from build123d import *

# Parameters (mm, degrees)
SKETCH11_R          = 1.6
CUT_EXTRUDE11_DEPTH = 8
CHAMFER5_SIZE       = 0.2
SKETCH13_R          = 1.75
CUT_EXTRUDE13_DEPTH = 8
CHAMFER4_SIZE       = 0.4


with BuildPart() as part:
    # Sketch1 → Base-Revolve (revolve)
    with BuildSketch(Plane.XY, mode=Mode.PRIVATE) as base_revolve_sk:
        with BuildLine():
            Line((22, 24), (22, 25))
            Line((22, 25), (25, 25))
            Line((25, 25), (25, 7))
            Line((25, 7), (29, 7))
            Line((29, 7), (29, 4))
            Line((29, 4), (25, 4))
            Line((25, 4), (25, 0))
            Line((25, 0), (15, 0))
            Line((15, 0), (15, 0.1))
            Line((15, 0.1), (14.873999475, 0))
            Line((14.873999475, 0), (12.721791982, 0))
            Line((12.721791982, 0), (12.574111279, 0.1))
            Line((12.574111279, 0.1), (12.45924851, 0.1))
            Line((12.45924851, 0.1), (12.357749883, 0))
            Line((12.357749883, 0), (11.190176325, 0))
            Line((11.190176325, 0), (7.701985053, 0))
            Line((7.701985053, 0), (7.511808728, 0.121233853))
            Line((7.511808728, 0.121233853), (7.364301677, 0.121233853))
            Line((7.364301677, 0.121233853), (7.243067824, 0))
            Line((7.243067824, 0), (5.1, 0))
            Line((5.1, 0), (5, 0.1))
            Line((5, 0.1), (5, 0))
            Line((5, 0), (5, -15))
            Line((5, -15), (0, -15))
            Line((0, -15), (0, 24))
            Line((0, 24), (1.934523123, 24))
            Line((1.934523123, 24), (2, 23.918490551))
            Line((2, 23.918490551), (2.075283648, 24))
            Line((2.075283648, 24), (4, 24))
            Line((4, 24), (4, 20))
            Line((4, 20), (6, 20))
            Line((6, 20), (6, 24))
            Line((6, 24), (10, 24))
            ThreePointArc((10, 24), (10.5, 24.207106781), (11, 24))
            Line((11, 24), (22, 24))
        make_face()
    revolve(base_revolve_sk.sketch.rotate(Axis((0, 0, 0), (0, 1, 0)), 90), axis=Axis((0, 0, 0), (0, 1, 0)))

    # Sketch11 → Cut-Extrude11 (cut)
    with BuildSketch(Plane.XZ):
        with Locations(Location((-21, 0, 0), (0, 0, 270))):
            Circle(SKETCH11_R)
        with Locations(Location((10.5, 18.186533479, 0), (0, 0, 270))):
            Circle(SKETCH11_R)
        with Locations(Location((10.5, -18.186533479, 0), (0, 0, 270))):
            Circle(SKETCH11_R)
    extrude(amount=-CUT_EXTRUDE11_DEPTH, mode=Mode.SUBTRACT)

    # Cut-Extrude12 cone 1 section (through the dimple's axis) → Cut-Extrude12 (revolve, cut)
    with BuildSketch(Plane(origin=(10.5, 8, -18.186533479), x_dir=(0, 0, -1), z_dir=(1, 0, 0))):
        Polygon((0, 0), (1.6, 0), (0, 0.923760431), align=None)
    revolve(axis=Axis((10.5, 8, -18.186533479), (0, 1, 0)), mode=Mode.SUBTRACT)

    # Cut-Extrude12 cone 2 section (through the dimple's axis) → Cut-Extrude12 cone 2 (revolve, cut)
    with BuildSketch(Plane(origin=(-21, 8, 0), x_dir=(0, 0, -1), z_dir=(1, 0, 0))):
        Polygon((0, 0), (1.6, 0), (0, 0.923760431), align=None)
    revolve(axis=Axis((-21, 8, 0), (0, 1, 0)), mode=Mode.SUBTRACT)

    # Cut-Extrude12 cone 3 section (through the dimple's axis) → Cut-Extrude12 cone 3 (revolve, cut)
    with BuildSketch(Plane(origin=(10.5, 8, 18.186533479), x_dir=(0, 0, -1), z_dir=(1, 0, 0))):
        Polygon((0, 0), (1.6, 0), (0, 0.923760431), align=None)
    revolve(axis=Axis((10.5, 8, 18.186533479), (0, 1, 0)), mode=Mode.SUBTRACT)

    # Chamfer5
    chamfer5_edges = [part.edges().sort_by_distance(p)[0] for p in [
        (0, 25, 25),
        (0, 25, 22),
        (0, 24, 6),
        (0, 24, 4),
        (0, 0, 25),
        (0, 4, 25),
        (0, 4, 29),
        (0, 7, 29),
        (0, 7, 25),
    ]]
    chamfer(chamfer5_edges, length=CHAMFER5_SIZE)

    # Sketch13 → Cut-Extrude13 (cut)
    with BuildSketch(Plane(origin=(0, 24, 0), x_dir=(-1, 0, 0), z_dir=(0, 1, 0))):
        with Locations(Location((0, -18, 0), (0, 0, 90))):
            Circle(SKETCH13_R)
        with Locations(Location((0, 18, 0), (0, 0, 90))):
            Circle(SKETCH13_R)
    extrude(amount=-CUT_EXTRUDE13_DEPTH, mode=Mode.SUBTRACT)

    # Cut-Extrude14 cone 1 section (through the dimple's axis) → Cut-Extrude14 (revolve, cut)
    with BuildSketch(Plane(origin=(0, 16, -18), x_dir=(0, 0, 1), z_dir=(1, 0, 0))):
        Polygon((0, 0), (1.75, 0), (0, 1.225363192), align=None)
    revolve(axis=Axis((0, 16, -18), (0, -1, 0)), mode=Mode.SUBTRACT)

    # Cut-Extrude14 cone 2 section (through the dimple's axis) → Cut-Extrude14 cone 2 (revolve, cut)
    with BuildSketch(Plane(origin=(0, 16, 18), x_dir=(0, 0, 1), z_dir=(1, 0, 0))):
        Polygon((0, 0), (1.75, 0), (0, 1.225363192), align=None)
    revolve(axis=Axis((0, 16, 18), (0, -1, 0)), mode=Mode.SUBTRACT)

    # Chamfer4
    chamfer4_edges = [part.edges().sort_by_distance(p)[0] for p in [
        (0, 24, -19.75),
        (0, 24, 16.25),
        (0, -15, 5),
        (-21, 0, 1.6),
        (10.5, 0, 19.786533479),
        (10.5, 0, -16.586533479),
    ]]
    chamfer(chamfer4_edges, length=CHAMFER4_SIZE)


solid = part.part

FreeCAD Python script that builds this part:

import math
import FreeCAD as App
import Part
import Sketcher
from FreeCAD import Vector
Q = App.Units.Quantity


def edges_at(feature, points):
    """Names of the edges that pass closest to the given points."""
    edges = feature.Shape.Edges
    near = lambda p: min(range(len(edges)), key=lambda i: edges[i].distToShape(Part.Vertex(*p))[0])
    return sorted({f"Edge{near(p) + 1}" for p in points})


def add_polygon(sketch, points):
    """Adds a closed chain of lines whose ends are joined by coincident constraints."""
    first, n = sketch.GeometryCount, len(points)
    for a, b in zip(points, points[1:] + points[:1]):
        sketch.addGeometry(Part.LineSegment(App.Vector(*a, 0), App.Vector(*b, 0)), False)
    for i in range(n):
        sketch.addConstraint(Sketcher.Constraint("Coincident", first + i, 2, first + (i + 1) % n, 1))

doc = App.newDocument("Part")
params = doc.addObject("Spreadsheet::Sheet", "Params")
for row, (alias, value) in enumerate([
    ("sketch1_width", "11 mm"),
    ("sketch1_width2", "4 mm"),
    ("sketch1_width3", "2 mm"),
    ("sketch1_width4", "5 mm"),
    ("sketch1_width5", "10 mm"),
    ("revolution_angle", "360 deg"),
    ("sketch2_diameter", "3.2 mm"),
    ("pocket1_length", "8 mm"),
    ("sketch3_height", "1.6 mm"),
    ("groove_angle", "360 deg"),
    ("sketch4_height", "1.6 mm"),
    ("groove2_angle", "360 deg"),
    ("sketch5_height", "1.6 mm"),
    ("groove3_angle", "360 deg"),
    ("chamfer_size", "0.2 mm"),
    ("sketch6_diameter", "3.5 mm"),
    ("pocket2_length", "8 mm"),
    ("sketch7_height", "1.75 mm"),
    ("groove4_angle", "360 deg"),
    ("sketch8_height", "1.75 mm"),
    ("groove5_angle", "360 deg"),
    ("chamfer2_size", "0.4 mm"),
], start=1):
    params.set(f"A{row}", alias)
    params.set(f"B{row}", "=" + value)
    params.setAlias(f"B{row}", alias)

body = doc.addObject("PartDesign::Body", "Body")

sketch1 = body.newObject("Sketcher::SketchObject", "Sketch")
sketch1.AttachmentSupport = (doc.getObject("XY_Plane"), [""])
sketch1.MapMode = "FlatFace"
sketch1.addGeometry([
    Part.LineSegment(Vector(22, 25, 0), Vector(22, 24, 0)),
    Part.LineSegment(Vector(22, 24, 0), Vector(11, 24, 0)),
    Part.ArcOfCircle(Part.Circle(Vector(10.5, 23.5, 0), Vector(0, 0, 1), 0.71), math.radians(45), math.radians(135)),
    Part.LineSegment(Vector(10, 24, 0), Vector(6, 24, 0)),
    Part.LineSegment(Vector(6, 24, 0), Vector(6, 20, 0)),
    Part.LineSegment(Vector(6, 20, 0), Vector(4, 20, 0)),
    Part.LineSegment(Vector(4, 20, 0), Vector(4, 24, 0)),
    Part.LineSegment(Vector(4, 24, 0), Vector(2.08, 24, 0)),
    Part.LineSegment(Vector(2.08, 24, 0), Vector(2, 23.92, 0)),
    Part.LineSegment(Vector(2, 23.92, 0), Vector(1.93, 24, 0)),
    Part.LineSegment(Vector(1.93, 24, 0), Vector(0, 24, 0)),
    Part.LineSegment(Vector(0, 24, 0), Vector(0, -15, 0)),
    Part.LineSegment(Vector(0, -15, 0), Vector(5, -15, 0)),
    Part.LineSegment(Vector(5, -15, 0), Vector(5, 0.1, 0)),
    Part.LineSegment(Vector(5, 0.1, 0), Vector(5.1, 0, 0)),
    Part.LineSegment(Vector(5.1, 0, 0), Vector(7.24, 0, 0)),
    Part.LineSegment(Vector(7.24, 0, 0), Vector(7.36, 0.12, 0)),
    Part.LineSegment(Vector(7.36, 0.12, 0), Vector(7.51, 0.12, 0)),
    Part.LineSegment(Vector(7.51, 0.12, 0), Vector(7.7, 0, 0)),
    Part.LineSegment(Vector(7.7, 0, 0), Vector(12.36, 0, 0)),
    Part.LineSegment(Vector(12.36, 0, 0), Vector(12.46, 0.1, 0)),
    Part.LineSegment(Vector(12.46, 0.1, 0), Vector(12.57, 0.1, 0)),
    Part.LineSegment(Vector(12.57, 0.1, 0), Vector(12.72, 0, 0)),
    Part.LineSegment(Vector(12.72, 0, 0), Vector(14.87, 0, 0)),
    Part.LineSegment(Vector(14.87, 0, 0), Vector(15, 0.1, 0)),
    Part.LineSegment(Vector(15, 0.1, 0), Vector(15, 0, 0)),
    Part.LineSegment(Vector(15, 0, 0), Vector(25, 0, 0)),
    Part.LineSegment(Vector(25, 0, 0), Vector(25, 4, 0)),
    Part.LineSegment(Vector(25, 4, 0), Vector(29, 4, 0)),
    Part.LineSegment(Vector(29, 4, 0), Vector(29, 7, 0)),
    Part.LineSegment(Vector(29, 7, 0), Vector(25, 7, 0)),
    Part.LineSegment(Vector(25, 7, 0), Vector(25, 25, 0)),
    Part.LineSegment(Vector(25, 25, 0), Vector(22, 25, 0)),
], False)
sketch1.addConstraint([
    Sketcher.Constraint("Coincident", 0, 2, 1, 1),
    Sketcher.Constraint("Coincident", 1, 2, 2, 1),
    Sketcher.Constraint("Coincident", 2, 2, 3, 1),
    Sketcher.Constraint("Coincident", 3, 2, 4, 1),
    Sketcher.Constraint("Coincident", 4, 2, 5, 1),
    Sketcher.Constraint("Coincident", 5, 2, 6, 1),
    Sketcher.Constraint("Coincident", 6, 2, 7, 1),
    Sketcher.Constraint("Coincident", 7, 2, 8, 1),
    Sketcher.Constraint("Coincident", 8, 2, 9, 1),
    Sketcher.Constraint("Coincident", 9, 2, 10, 1),
    Sketcher.Constraint("Coincident", 10, 2, 11, 1),
    Sketcher.Constraint("Coincident", 11, 2, 12, 1),
    Sketcher.Constraint("Coincident", 12, 2, 13, 1),
    Sketcher.Constraint("Coincident", 13, 2, 14, 1),
    Sketcher.Constraint("Coincident", 14, 2, 15, 1),
    Sketcher.Constraint("Coincident", 15, 2, 16, 1),
    Sketcher.Constraint("Coincident", 16, 2, 17, 1),
    Sketcher.Constraint("Coincident", 17, 2, 18, 1),
    Sketcher.Constraint("Coincident", 18, 2, 19, 1),
    Sketcher.Constraint("Coincident", 19, 2, 20, 1),
    Sketcher.Constraint("Coincident", 20, 2, 21, 1),
    Sketcher.Constraint("Coincident", 21, 2, 22, 1),
    Sketcher.Constraint("Coincident", 22, 2, 23, 1),
    Sketcher.Constraint("Coincident", 23, 2, 24, 1),
    Sketcher.Constraint("Coincident", 24, 2, 25, 1),
    Sketcher.Constraint("Coincident", 25, 2, 26, 1),
    Sketcher.Constraint("Coincident", 26, 2, 27, 1),
    Sketcher.Constraint("Coincident", 27, 2, 28, 1),
    Sketcher.Constraint("Coincident", 28, 2, 29, 1),
    Sketcher.Constraint("Coincident", 29, 2, 30, 1),
    Sketcher.Constraint("Coincident", 30, 2, 31, 1),
    Sketcher.Constraint("Coincident", 31, 2, 32, 1),
    Sketcher.Constraint("Coincident", 32, 2, 0, 1),
    Sketcher.Constraint("Vertical", 0),
    Sketcher.Constraint("Horizontal", 1),
    Sketcher.Constraint("Horizontal", 3),
    Sketcher.Constraint("Vertical", 4),
    Sketcher.Constraint("Horizontal", 5),
    Sketcher.Constraint("Vertical", 6),
    Sketcher.Constraint("Horizontal", 7),
    Sketcher.Constraint("Horizontal", 10),
    Sketcher.Constraint("Vertical", 11),
    Sketcher.Constraint("Horizontal", 12),
    Sketcher.Constraint("Vertical", 13),
    Sketcher.Constraint("Horizontal", 15),
    Sketcher.Constraint("Horizontal", 17),
    Sketcher.Constraint("Horizontal", 19),
    Sketcher.Constraint("Horizontal", 21),
    Sketcher.Constraint("Horizontal", 23),
    Sketcher.Constraint("Vertical", 25),
    Sketcher.Constraint("Horizontal", 26),
    Sketcher.Constraint("Vertical", 27),
    Sketcher.Constraint("Horizontal", 28),
    Sketcher.Constraint("Vertical", 29),
    Sketcher.Constraint("Horizontal", 30),
    Sketcher.Constraint("Vertical", 31),
    Sketcher.Constraint("Horizontal", 32),
    Sketcher.Constraint("PointOnObject", 10, 2, -2),
    Sketcher.Constraint("PointOnObject", 14, 2, -1),
    Sketcher.Constraint("PointOnObject", 18, 2, -1),
    Sketcher.Constraint("PointOnObject", 22, 2, -1),
    Sketcher.Constraint("PointOnObject", 25, 2, -1),
    Sketcher.Constraint("Perpendicular", 14, 16),
    Sketcher.Constraint("Horizontal", 1, 2, 2, 2),
    Sketcher.Constraint("Horizontal", 3, 2, 6, 2),
    Sketcher.Constraint("Horizontal", 7, 2, 9, 2),
    Sketcher.Constraint("Horizontal", 13, 2, 20, 2),
    Sketcher.Constraint("Horizontal", 21, 2, 24, 2),
    Sketcher.Constraint("Vertical", 27, 2, 30, 2),
    Sketcher.Constraint("Equal", 3, 28),
    Sketcher.Constraint("Equal", 30, 4),
    Sketcher.Constraint("Equal", 6, 27),
    Sketcher.Constraint("Equal", 32, 29),
    Sketcher.Constraint("DistanceX", 1, 2, 1, 1, 11.0),
    Sketcher.Constraint("DistanceX", 3, 2, 3, 1, 4.0),
    Sketcher.Constraint("DistanceX", 5, 2, 5, 1, 2.0),
    Sketcher.Constraint("DistanceX", 12, 1, 12, 2, 5.0),
    Sketcher.Constraint("DistanceX", 26, 1, 26, 2, 10.0),
    Sketcher.Constraint("DistanceX", 32, 2, 32, 1, 3.0),
    Sketcher.Constraint("DistanceY", 0, 2, 0, 1, 1.0),
    Sketcher.Constraint("DistanceY", 11, 2, 11, 1, 39.0),
    Sketcher.Constraint("DistanceY", 31, 1, 31, 2, 18.0),
    Sketcher.Constraint("Angle", 14, Q("-45 deg")),
    Sketcher.Constraint("DistanceY", 13, 1, 13, 2, 15.1),
    Sketcher.Constraint("DistanceX", -1, 1, 0, 2, 22.0),
    Sketcher.Constraint("DistanceX", -1, 1, 2, 2, 10.0),
    Sketcher.Constraint("DistanceX", -1, 1, 8, 2, 2.0),
    Sketcher.Constraint("DistanceY", -1, 1, 2, 3, 23.5),
    Sketcher.Constraint("DistanceX", -1, 1, 23, 2, 14.873999),
    Sketcher.Constraint("DistanceX", -1, 1, 16, 2, 7.364302),
    Sketcher.Constraint("DistanceX", 19, 2, 20, 2, 0.101499),
    Sketcher.Constraint("Distance", 9, 0.104551),
    Sketcher.Constraint("Distance", 16, 0.171451),
    Sketcher.Constraint("Distance", 18, 0.225532),
    Sketcher.Constraint("DistanceX", 7, 2, 7, 1, 1.924716),
    Sketcher.Constraint("DistanceX", 10, 2, 10, 1, 1.934523),
    Sketcher.Constraint("DistanceX", 17, 1, 17, 2, 0.147507),
    Sketcher.Constraint("DistanceX", 19, 1, 19, 2, 4.655765),
    Sketcher.Constraint("DistanceX", 21, 1, 21, 2, 0.114863),
    Sketcher.Constraint("DistanceX", 23, 1, 23, 2, 2.152207),
])
sketch1.setExpression("Constraints[73]", "Params.sketch1_width")
sketch1.setExpression("Constraints[74]", "Params.sketch1_width2")
sketch1.setExpression("Constraints[75]", "Params.sketch1_width3")
sketch1.setExpression("Constraints[76]", "Params.sketch1_width4")
sketch1.setExpression("Constraints[77]", "Params.sketch1_width5")
revolution = body.newObject("PartDesign::Revolution", "Revolution")
revolution.Profile = sketch1
revolution.ReferenceAxis = (sketch1, ["V_Axis"])
revolution.setExpression("Angle", "Params.revolution_angle")

sketch2 = body.newObject("Sketcher::SketchObject", "Sketch001")
sketch2.AttachmentSupport = (doc.getObject("XZ_Plane"), [""])
sketch2.MapMode = "FlatFace"
sketch2.addGeometry([
    Part.Circle(Vector(-21, 0, 0), Vector(0, 0, 1), 1.6),
    Part.Circle(Vector(10.5, 18.2, 0), Vector(0, 0, 1), 1.6),
    Part.Circle(Vector(10.5, -18.2, 0), Vector(0, 0, 1), 1.6),
], False)
sketch2.addConstraint([
    Sketcher.Constraint("Equal", 0, 1),
    Sketcher.Constraint("Equal", 1, 2),
    Sketcher.Constraint("Symmetric", 1, 3, 2, 3, -1),
    Sketcher.Constraint("PointOnObject", 0, 3, -1),
    Sketcher.Constraint("Diameter", 0, 3.2),
    Sketcher.Constraint("DistanceX", 0, 3, -1, 1, 21.0),
    Sketcher.Constraint("DistanceX", -1, 1, 1, 3, 10.5),
    Sketcher.Constraint("DistanceY", -1, 1, 1, 3, 18.186533),
])
sketch2.setExpression("Constraints[4]", "Params.sketch2_diameter")
pocket1 = body.newObject("PartDesign::Pocket", "Pocket")
pocket1.Profile = sketch2
pocket1.setExpression("Length", "Params.pocket1_length")

sketch3 = body.newObject("Sketcher::SketchObject", "Sketch002")
sketch3.AttachmentSupport = (doc.getObject("YZ_Plane"), [""])
sketch3.MapMode = "FlatFace"
sketch3.AttachmentOffset = App.Placement(Vector(0, 0, 10.5), App.Rotation())
add_polygon(sketch3, [(8, -18.2), (8, -19.8), (8.9, -18.2)])
sketch3.addGeometry(Part.LineSegment(Vector(8, -18.2, 0), Vector(8.9, -18.2, 0)), True)
sketch3.addConstraint([
    Sketcher.Constraint("Vertical", 0),
    Sketcher.Constraint("Horizontal", 2),
    Sketcher.Constraint("Horizontal", 3),
    Sketcher.Constraint("Coincident", 3, 1, 2, 2),
    Sketcher.Constraint("Equal", 2, 3),
    Sketcher.Constraint("Angle", 1, Q("60 deg")),
    Sketcher.Constraint("DistanceY", 0, 2, 0, 1, 1.6),
    Sketcher.Constraint("DistanceX", -1, 1, 0, 2, 8.0),
    Sketcher.Constraint("DistanceY", 0, 2, -1, 1, 19.786533),
])
sketch3.setExpression("Constraints[9]", "Params.sketch3_height")
groove = body.newObject("PartDesign::Groove", "Groove")
groove.Profile = sketch3
groove.ReferenceAxis = (sketch3, ["Axis0"])
groove.setExpression("Angle", "Params.groove_angle")

sketch4 = body.newObject("Sketcher::SketchObject", "Sketch003")
sketch4.AttachmentSupport = (doc.getObject("YZ_Plane"), [""])
sketch4.MapMode = "FlatFace"
sketch4.AttachmentOffset = App.Placement(Vector(0, 0, -21), App.Rotation())
add_polygon(sketch4, [(8, 0), (8, -1.6), (8.9, 0)])
sketch4.addConstraint([
    Sketcher.Constraint("Vertical", 0),
    Sketcher.Constraint("Horizontal", 2),
    Sketcher.Constraint("PointOnObject", 1, 2, -1),
    Sketcher.Constraint("Angle", 1, Q("60 deg")),
    Sketcher.Constraint("DistanceY", 0, 2, 0, 1, 1.6),
    Sketcher.Constraint("DistanceX", -1, 1, 0, 2, 8.0),
])
sketch4.setExpression("Constraints[7]", "Params.sketch4_height")
groove2 = body.newObject("PartDesign::Groove", "Groove001")
groove2.Profile = sketch4
groove2.ReferenceAxis = (sketch4, ["H_Axis"])
groove2.setExpression("Angle", "Params.groove2_angle")

sketch5 = body.newObject("Sketcher::SketchObject", "Sketch004")
sketch5.AttachmentSupport = (doc.getObject("YZ_Plane"), [""])
sketch5.MapMode = "FlatFace"
sketch5.AttachmentOffset = App.Placement(Vector(0, 0, 10.5), App.Rotation())
add_polygon(sketch5, [(8, 18.2), (8, 16.6), (8.9, 18.2)])
sketch5.addGeometry(Part.LineSegment(Vector(8, 18.2, 0), Vector(8.9, 18.2, 0)), True)
sketch5.addConstraint([
    Sketcher.Constraint("Vertical", 0),
    Sketcher.Constraint("Horizontal", 2),
    Sketcher.Constraint("Horizontal", 3),
    Sketcher.Constraint("Coincident", 3, 1, 2, 2),
    Sketcher.Constraint("Equal", 2, 3),
    Sketcher.Constraint("Angle", 1, Q("60 deg")),
    Sketcher.Constraint("DistanceY", 0, 2, 0, 1, 1.6),
    Sketcher.Constraint("DistanceX", -1, 1, 0, 2, 8.0),
    Sketcher.Constraint("DistanceY", -1, 1, 0, 2, 16.586533),
])
sketch5.setExpression("Constraints[9]", "Params.sketch5_height")
groove3 = body.newObject("PartDesign::Groove", "Groove002")
groove3.Profile = sketch5
groove3.ReferenceAxis = (sketch5, ["Axis0"])
groove3.setExpression("Angle", "Params.groove3_angle")
doc.recompute()

chamfer = body.newObject("PartDesign::Chamfer", "Chamfer")
chamfer.Base = (groove3, edges_at(groove3, [
    (0, 25, 25),
    (0, 25, 22),
    (0, 24, 6),
    (0, 24, 4),
    (0, 0, 25),
    (0, 4, 25),
    (0, 4, 29),
    (0, 7, 29),
    (0, 7, 25),
]))
chamfer.setExpression("Size", "Params.chamfer_size")

sketch6 = body.newObject("Sketcher::SketchObject", "Sketch005")
sketch6.AttachmentSupport = (doc.getObject("XZ_Plane"), [""])
sketch6.MapMode = "FlatFace"
sketch6.AttachmentOffset = App.Placement(Vector(0, 0, -24), App.Rotation())
sketch6.addGeometry([
    Part.Circle(Vector(0, -18, 0), Vector(0, 0, 1), 1.8),
    Part.Circle(Vector(0, 18, 0), Vector(0, 0, 1), 1.8),
], False)
sketch6.addConstraint([
    Sketcher.Constraint("Equal", 0, 1),
    Sketcher.Constraint("Symmetric", 0, 3, 1, 3, -1, 1),
    Sketcher.Constraint("PointOnObject", 0, 3, -2),
    Sketcher.Constraint("Diameter", 0, 3.5),
    Sketcher.Constraint("DistanceY", 0, 3, -1, 1, 18.0),
])
sketch6.setExpression("Constraints[3]", "Params.sketch6_diameter")
pocket2 = body.newObject("PartDesign::Pocket", "Pocket001")
pocket2.Profile = sketch6
pocket2.setExpression("Length", "Params.pocket2_length")
pocket2.Reversed = True

sketch7 = body.newObject("Sketcher::SketchObject", "Sketch006")
sketch7.AttachmentSupport = (doc.getObject("YZ_Plane"), [""])
sketch7.MapMode = "FlatFace"
add_polygon(sketch7, [(16, -18), (16, -16.2), (14.8, -18)])
sketch7.addGeometry(Part.LineSegment(Vector(16, -18, 0), Vector(14.8, -18, 0)), True)
sketch7.addConstraint([
    Sketcher.Constraint("Vertical", 0),
    Sketcher.Constraint("Horizontal", 2),
    Sketcher.Constraint("Horizontal", 3),
    Sketcher.Constraint("Coincident", 3, 1, 2, 2),
    Sketcher.Constraint("Equal", 2, 3),
    Sketcher.Constraint("Angle", 1, Q("-125 deg")),
    Sketcher.Constraint("DistanceX", -1, 1, 0, 2, 16.0),
    Sketcher.Constraint("DistanceY", 1, 2, -1, 1, 18.0),
    Sketcher.Constraint("DistanceY", 0, 1, 0, 2, 1.75),
])
sketch7.setExpression("Constraints[11]", "Params.sketch7_height")
groove4 = body.newObject("PartDesign::Groove", "Groove003")
groove4.Profile = sketch7
groove4.ReferenceAxis = (sketch7, ["Axis0"])
groove4.setExpression("Angle", "Params.groove4_angle")

sketch8 = body.newObject("Sketcher::SketchObject", "Sketch007")
sketch8.AttachmentSupport = (doc.getObject("YZ_Plane"), [""])
sketch8.MapMode = "FlatFace"
add_polygon(sketch8, [(16, 18), (16, 19.8), (14.8, 18)])
sketch8.addGeometry(Part.LineSegment(Vector(16, 18, 0), Vector(14.8, 18, 0)), True)
sketch8.addConstraint([
    Sketcher.Constraint("Vertical", 0),
    Sketcher.Constraint("Horizontal", 2),
    Sketcher.Constraint("Horizontal", 3),
    Sketcher.Constraint("Coincident", 3, 1, 2, 2),
    Sketcher.Constraint("Equal", 2, 3),
    Sketcher.Constraint("Angle", 1, Q("-125 deg")),
    Sketcher.Constraint("DistanceX", -1, 1, 0, 2, 16.0),
    Sketcher.Constraint("DistanceY", -1, 1, 1, 2, 18.0),
    Sketcher.Constraint("DistanceY", 0, 1, 0, 2, 1.75),
])
sketch8.setExpression("Constraints[11]", "Params.sketch8_height")
groove5 = body.newObject("PartDesign::Groove", "Groove004")
groove5.Profile = sketch8
groove5.ReferenceAxis = (sketch8, ["Axis0"])
groove5.setExpression("Angle", "Params.groove5_angle")
doc.recompute()

chamfer2 = body.newObject("PartDesign::Chamfer", "Chamfer001")
chamfer2.Base = (groove5, edges_at(groove5, [
    (0, 24, -19.75),
    (0, 24, 16.25),
    (0, -15, 5),
    (-21, 0, 1.6),
    (10.5, 0, 19.787),
    (10.5, 0, -16.587),
]))
chamfer2.setExpression("Size", "Params.chamfer2_size")

doc.recompute()
